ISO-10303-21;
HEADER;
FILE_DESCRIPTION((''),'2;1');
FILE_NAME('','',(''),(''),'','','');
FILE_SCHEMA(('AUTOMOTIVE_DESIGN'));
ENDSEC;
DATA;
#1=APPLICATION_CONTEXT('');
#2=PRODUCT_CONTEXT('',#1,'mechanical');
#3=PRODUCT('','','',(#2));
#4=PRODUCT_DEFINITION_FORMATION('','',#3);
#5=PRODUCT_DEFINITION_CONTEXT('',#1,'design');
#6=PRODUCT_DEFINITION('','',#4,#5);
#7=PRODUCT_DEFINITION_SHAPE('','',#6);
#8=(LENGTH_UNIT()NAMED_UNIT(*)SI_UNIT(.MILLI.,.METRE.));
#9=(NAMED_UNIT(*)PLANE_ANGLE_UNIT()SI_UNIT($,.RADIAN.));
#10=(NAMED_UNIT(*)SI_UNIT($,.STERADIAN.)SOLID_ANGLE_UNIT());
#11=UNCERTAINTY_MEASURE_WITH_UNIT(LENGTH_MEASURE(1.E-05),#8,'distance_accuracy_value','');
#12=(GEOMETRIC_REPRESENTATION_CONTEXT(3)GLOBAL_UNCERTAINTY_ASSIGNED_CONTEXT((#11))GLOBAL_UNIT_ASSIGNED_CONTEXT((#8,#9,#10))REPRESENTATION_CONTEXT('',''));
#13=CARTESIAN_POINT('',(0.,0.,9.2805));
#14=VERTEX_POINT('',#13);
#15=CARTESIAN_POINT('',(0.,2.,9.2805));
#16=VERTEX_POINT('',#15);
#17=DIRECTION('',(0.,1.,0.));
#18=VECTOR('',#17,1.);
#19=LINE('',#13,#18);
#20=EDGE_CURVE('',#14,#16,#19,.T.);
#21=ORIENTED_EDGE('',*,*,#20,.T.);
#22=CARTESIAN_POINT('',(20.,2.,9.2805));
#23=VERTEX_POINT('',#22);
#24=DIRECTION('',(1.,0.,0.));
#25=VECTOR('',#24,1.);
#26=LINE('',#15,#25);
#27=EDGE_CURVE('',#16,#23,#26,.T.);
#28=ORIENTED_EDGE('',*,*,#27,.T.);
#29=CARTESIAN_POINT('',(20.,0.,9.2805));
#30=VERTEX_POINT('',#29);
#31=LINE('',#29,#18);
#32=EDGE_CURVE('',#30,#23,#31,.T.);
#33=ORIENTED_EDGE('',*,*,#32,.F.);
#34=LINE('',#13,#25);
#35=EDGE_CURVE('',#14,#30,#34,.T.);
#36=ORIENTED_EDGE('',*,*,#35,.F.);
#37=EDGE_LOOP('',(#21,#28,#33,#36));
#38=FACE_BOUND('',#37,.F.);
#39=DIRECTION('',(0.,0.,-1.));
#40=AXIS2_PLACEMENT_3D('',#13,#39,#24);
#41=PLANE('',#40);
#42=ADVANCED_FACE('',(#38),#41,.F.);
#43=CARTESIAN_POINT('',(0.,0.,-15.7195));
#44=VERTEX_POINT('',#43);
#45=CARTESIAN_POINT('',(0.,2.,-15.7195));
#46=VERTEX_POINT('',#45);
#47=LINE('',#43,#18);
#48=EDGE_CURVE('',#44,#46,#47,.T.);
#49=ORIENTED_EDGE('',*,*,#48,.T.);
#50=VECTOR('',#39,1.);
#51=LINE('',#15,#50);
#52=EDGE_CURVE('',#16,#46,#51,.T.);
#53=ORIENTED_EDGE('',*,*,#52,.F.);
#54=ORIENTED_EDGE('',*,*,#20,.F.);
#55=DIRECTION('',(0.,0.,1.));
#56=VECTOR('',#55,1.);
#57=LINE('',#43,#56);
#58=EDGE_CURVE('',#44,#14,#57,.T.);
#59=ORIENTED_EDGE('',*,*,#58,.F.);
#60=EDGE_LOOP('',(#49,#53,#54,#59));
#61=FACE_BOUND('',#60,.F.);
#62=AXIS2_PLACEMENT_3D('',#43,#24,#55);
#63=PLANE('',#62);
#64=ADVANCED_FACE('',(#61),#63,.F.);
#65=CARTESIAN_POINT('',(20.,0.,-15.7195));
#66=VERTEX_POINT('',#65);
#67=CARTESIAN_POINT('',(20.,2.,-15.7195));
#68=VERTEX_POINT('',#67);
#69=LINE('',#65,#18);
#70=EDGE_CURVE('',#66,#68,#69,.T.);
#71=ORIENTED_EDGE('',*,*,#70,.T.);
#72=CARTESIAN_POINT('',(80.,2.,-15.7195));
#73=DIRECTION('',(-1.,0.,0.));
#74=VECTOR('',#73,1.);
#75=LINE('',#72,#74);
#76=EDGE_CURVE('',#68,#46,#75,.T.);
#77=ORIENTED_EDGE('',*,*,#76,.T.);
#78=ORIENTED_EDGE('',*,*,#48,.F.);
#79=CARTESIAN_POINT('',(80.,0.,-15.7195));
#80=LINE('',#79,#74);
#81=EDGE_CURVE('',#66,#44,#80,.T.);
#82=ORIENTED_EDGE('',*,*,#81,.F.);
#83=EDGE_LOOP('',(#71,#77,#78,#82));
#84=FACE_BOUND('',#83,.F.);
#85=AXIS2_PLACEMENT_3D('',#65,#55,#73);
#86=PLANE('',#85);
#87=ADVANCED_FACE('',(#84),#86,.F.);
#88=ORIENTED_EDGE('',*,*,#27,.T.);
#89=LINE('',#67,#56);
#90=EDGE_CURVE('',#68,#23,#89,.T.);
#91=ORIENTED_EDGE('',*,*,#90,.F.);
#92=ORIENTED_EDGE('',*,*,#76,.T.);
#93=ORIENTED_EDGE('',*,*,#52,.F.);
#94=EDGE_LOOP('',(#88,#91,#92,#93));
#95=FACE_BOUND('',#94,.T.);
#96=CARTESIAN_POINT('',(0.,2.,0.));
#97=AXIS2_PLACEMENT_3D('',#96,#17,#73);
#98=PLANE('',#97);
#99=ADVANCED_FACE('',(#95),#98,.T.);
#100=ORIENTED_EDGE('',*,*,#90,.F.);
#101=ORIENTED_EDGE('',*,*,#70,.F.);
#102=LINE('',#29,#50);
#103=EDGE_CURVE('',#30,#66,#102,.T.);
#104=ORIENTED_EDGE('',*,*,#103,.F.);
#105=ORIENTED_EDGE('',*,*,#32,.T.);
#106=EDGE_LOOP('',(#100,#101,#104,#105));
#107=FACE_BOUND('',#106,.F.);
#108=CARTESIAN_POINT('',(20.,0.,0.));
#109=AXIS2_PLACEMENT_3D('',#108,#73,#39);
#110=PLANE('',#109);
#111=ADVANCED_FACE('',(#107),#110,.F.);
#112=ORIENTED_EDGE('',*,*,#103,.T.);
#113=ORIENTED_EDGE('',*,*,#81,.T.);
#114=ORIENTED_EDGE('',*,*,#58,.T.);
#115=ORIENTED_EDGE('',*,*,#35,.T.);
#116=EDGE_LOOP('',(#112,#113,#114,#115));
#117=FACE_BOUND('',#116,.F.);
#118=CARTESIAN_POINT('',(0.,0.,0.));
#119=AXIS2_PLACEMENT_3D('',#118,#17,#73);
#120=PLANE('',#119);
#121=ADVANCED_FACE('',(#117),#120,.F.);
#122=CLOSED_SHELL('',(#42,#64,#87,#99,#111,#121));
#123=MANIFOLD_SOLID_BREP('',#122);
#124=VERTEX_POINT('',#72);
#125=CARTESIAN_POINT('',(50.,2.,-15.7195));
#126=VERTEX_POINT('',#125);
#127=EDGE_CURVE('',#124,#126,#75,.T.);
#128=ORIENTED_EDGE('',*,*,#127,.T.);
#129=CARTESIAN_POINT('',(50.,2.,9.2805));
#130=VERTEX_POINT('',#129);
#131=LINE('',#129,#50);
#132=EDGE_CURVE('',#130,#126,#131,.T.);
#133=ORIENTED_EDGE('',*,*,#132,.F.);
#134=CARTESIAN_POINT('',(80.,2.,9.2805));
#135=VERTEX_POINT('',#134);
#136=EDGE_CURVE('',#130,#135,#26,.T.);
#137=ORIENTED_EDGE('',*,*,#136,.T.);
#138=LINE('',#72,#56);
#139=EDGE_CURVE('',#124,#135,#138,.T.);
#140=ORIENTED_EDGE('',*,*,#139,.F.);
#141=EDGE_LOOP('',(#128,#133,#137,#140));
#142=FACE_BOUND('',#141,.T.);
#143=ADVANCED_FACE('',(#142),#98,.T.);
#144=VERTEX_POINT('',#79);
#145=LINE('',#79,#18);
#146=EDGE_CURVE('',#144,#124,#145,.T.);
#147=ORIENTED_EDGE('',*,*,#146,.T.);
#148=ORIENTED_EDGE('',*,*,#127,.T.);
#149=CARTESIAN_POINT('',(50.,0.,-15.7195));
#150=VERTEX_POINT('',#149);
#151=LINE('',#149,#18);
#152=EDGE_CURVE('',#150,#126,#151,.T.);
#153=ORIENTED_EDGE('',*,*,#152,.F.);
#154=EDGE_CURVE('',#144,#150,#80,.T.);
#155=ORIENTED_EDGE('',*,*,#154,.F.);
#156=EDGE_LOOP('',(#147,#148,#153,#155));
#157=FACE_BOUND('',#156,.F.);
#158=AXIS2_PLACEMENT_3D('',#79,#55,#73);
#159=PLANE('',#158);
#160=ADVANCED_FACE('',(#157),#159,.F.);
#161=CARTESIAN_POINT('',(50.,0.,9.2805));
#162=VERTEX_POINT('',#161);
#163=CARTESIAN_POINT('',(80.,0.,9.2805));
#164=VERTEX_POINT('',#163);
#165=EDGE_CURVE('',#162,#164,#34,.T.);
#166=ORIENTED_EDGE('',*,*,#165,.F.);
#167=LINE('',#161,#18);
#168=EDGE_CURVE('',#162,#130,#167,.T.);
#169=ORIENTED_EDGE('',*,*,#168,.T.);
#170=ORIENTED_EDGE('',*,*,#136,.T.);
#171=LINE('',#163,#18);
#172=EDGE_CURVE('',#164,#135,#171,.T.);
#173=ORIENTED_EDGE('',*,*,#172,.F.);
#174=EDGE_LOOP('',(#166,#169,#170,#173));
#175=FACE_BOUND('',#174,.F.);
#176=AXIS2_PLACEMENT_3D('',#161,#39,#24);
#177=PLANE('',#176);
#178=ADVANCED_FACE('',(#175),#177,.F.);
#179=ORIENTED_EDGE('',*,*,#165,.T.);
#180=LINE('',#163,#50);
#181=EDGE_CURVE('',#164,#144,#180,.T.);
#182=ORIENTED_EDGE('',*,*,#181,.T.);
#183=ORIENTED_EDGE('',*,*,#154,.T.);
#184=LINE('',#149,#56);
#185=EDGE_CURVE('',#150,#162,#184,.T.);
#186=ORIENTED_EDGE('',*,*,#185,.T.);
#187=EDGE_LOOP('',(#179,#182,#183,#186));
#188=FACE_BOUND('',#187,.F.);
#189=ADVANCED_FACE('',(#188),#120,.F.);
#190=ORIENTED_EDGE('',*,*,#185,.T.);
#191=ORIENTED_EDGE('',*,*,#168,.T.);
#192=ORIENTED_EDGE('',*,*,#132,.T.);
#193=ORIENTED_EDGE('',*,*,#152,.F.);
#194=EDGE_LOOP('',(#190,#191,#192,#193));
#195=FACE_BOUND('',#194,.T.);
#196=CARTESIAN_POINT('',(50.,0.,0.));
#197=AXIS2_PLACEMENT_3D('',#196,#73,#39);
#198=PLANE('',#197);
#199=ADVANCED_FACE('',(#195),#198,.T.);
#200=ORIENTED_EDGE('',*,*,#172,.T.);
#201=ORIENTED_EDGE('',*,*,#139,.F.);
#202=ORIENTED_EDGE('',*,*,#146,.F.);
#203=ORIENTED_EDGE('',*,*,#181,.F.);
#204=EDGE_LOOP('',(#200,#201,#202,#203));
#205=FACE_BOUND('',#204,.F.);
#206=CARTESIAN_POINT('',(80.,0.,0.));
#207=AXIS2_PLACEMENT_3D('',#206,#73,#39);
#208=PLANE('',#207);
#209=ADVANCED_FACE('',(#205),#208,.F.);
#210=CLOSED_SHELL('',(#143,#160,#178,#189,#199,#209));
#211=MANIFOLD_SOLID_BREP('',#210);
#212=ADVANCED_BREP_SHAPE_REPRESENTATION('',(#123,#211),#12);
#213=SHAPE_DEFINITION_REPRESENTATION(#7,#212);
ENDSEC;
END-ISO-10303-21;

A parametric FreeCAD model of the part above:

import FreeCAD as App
import Part
import Sketcher

V = App.Vector

doc = App.newDocument("Part")
body = doc.addObject("PartDesign::Body", "Body")
body.AllowCompound = True

# Sketch on XZ plane
sketch1 = body.newObject("Sketcher::SketchObject", "Sketch")
sketch1.AttachmentSupport = (doc.getObject("XZ_Plane"), [""])
sketch1.MapMode = "FlatFace"
sketch1.addGeometry([
    Part.LineSegment(V(20, -15.7195, 0), V(0, -15.7195, 0)),  # 0
    Part.LineSegment(V(0, -15.7195, 0), V(0, 9.2805, 0)),  # 1
    Part.LineSegment(V(0, 9.2805, 0), V(20, 9.2805, 0)),  # 2
    Part.LineSegment(V(20, 9.2805, 0), V(20, -15.7195, 0)),  # 3
    Part.LineSegment(V(80, -15.7195, 0), V(50, -15.7195, 0)),  # 4
    Part.LineSegment(V(50, -15.7195, 0), V(50, 9.2805, 0)),  # 5
    Part.LineSegment(V(50, 9.2805, 0), V(80, 9.2805, 0)),  # 6
    Part.LineSegment(V(80, 9.2805, 0), V(80, -15.7195, 0)),  # 7
], False)
sketch1.addConstraint([
    Sketcher.Constraint("Coincident", 0, 2, 1, 1),
    Sketcher.Constraint("Coincident", 1, 2, 2, 1),
    Sketcher.Constraint("Coincident", 2, 2, 3, 1),
    Sketcher.Constraint("Coincident", 3, 2, 0, 1),
    Sketcher.Constraint("Coincident", 4, 2, 5, 1),
    Sketcher.Constraint("Coincident", 5, 2, 6, 1),
    Sketcher.Constraint("Coincident", 6, 2, 7, 1),
    Sketcher.Constraint("Coincident", 7, 2, 4, 1),
    Sketcher.Constraint("Horizontal", 0),
    Sketcher.Constraint("Vertical", 1),
    Sketcher.Constraint("Horizontal", 2),
    Sketcher.Constraint("Vertical", 3),
    Sketcher.Constraint("Horizontal", 4),
    Sketcher.Constraint("Vertical", 5),
    Sketcher.Constraint("Horizontal", 6),
    Sketcher.Constraint("Vertical", 7),
    Sketcher.Constraint("PointOnObject", 0, 2, -2),
    Sketcher.Constraint("Horizontal", 3, 2, 4, 2),
    Sketcher.Constraint("Horizontal", 2, 2, 5, 2),
    Sketcher.Constraint("DistanceX", 0, 2, 0, 1, 20.0),
    Sketcher.Constraint("DistanceX", 4, 2, 4, 1, 30.0),
    Sketcher.Constraint("DistanceY", 1, 1, 1, 2, 25.0),
    Sketcher.Constraint("DistanceX", -1, 1, 6, 2, 80.0),
    Sketcher.Constraint("DistanceY", 0, 2, -1, 1, 15.7195),
])
pad1 = body.newObject("PartDesign::Pad", "Pad")
pad1.Profile = sketch1
pad1.Length = 2
pad1.Reversed = True

doc.recompute()
